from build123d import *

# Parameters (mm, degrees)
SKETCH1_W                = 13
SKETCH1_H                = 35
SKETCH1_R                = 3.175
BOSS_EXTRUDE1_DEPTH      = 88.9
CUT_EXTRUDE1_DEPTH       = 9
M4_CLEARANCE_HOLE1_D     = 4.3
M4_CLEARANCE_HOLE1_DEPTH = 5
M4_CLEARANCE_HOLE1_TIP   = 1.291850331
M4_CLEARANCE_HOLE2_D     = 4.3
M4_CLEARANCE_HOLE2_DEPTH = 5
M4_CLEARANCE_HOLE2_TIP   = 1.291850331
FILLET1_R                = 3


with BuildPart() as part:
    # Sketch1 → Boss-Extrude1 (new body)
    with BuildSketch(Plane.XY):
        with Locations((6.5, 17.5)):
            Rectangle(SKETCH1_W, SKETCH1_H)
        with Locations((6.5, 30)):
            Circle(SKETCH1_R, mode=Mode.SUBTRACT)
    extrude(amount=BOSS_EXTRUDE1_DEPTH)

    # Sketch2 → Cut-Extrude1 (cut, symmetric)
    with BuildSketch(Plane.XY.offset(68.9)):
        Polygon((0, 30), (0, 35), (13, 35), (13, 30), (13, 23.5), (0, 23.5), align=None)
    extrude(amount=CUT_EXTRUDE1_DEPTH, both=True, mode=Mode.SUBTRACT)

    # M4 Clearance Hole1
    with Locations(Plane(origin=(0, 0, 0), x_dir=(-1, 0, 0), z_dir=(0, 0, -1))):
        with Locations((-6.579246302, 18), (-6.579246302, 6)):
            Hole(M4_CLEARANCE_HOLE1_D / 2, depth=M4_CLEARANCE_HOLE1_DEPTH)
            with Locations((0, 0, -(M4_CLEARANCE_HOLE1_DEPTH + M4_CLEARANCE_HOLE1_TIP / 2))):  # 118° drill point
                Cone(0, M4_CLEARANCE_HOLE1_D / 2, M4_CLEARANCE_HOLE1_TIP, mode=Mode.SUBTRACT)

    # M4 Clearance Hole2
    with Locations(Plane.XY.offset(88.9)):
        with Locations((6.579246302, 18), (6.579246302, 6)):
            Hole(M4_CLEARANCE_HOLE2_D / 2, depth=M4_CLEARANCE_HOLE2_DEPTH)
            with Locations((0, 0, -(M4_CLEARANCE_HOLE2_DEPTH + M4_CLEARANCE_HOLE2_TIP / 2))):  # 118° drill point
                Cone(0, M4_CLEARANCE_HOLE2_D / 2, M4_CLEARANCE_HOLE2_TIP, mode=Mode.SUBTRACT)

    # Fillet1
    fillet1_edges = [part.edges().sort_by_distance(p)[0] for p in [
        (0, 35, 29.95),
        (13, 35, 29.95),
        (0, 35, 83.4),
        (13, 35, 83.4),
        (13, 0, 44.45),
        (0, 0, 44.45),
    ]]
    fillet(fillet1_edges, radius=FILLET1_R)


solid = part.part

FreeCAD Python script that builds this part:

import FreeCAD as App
import Part
import Sketcher

V = App.Vector


def edges_at(feature, points):
    """Names of the edges that pass closest to the given points."""
    edges = feature.Shape.Edges
    near = lambda p: min(range(len(edges)), key=lambda i: edges[i].distToShape(Part.Vertex(*p))[0])
    return sorted({f"Edge{near(p) + 1}" for p in points})

doc = App.newDocument("Part")
body = doc.addObject("PartDesign::Body", "Body")

sketch1 = body.newObject("Sketcher::SketchObject", "Sketch")
sketch1.AttachmentSupport = (doc.getObject("XY_Plane"), [""])
sketch1.MapMode = "FlatFace"
sketch1.addGeometry([
    Part.LineSegment(V(0, 35, 0), V(0, 0, 0)),
    Part.LineSegment(V(0, 0, 0), V(13, 0, 0)),
    Part.LineSegment(V(13, 0, 0), V(13, 35, 0)),
    Part.LineSegment(V(13, 35, 0), V(0, 35, 0)),
    Part.Circle(V(6.5, 30, 0), V(0, 0, 1), 3.175),
], False)
sketch1.addConstraint([
    Sketcher.Constraint("Coincident", 0, 2, 1, 1),
    Sketcher.Constraint("Coincident", 1, 2, 2, 1),
    Sketcher.Constraint("Coincident", 2, 2, 3, 1),
    Sketcher.Constraint("Coincident", 3, 2, 0, 1),
    Sketcher.Constraint("Vertical", 0),
    Sketcher.Constraint("Horizontal", 1),
    Sketcher.Constraint("Vertical", 2),
    Sketcher.Constraint("Horizontal", 3),
    Sketcher.Constraint("Coincident", 0, 2, -1, 1),
    Sketcher.Constraint("Diameter", 4, 6.35),
    Sketcher.Constraint("DistanceX", 1, 1, 1, 2, 13.0),
    Sketcher.Constraint("DistanceY", 0, 2, 0, 1, 35.0),
    Sketcher.Constraint("DistanceY", -1, 1, 4, 3, 30.0),
    Sketcher.Constraint("DistanceX", -1, 1, 4, 3, 6.5),
])
pad1 = body.newObject("PartDesign::Pad", "Pad")
pad1.Profile = sketch1
pad1.Length = 88.9

sketch2 = body.newObject("Sketcher::SketchObject", "Sketch001")
sketch2.AttachmentSupport = (doc.getObject("XY_Plane"), [""])
sketch2.MapMode = "FlatFace"
sketch2.AttachmentOffset = App.Placement(V(0, 0, 68.9), App.Rotation())
sketch2.addGeometry([
    Part.LineSegment(V(0, 35, 0), V(0, 23.5, 0)),
    Part.LineSegment(V(0, 23.5, 0), V(13, 23.5, 0)),
    Part.LineSegment(V(13, 23.5, 0), V(13, 35, 0)),
    Part.LineSegment(V(13, 35, 0), V(0, 35, 0)),
], False)
sketch2.addConstraint([
    Sketcher.Constraint("Coincident", 0, 2, 1, 1),
    Sketcher.Constraint("Coincident", 1, 2, 2, 1),
    Sketcher.Constraint("Coincident", 2, 2, 3, 1),
    Sketcher.Constraint("Coincident", 3, 2, 0, 1),
    Sketcher.Constraint("Vertical", 0),
    Sketcher.Constraint("Horizontal", 1),
    Sketcher.Constraint("Vertical", 2),
    Sketcher.Constraint("Horizontal", 3),
    Sketcher.Constraint("PointOnObject", 0, 2, -2),
    Sketcher.Constraint("DistanceX", 1, 1, 1, 2, 13.0),
    Sketcher.Constraint("DistanceY", 0, 2, 0, 1, 11.5),
    Sketcher.Constraint("DistanceY", -1, 1, 2, 2, 35.0),
])
pocket1 = body.newObject("PartDesign::Pocket", "Pocket")
pocket1.Profile = sketch2
pocket1.Length = 18
pocket1.Midplane = True

sketch3 = body.newObject("Sketcher::SketchObject", "Sketch002")
sketch3.AttachmentSupport = (doc.getObject("XY_Plane"), [""])
sketch3.MapMode = "FlatFace"
sketch3.addGeometry([
    Part.Circle(V(6.579246, 18, 0), V(0, 0, 1), 2.15),
    Part.Circle(V(6.579246, 6, 0), V(0, 0, 1), 2.15),
], False)
sketch3.addConstraint([
    Sketcher.Constraint("Equal", 0, 1),
    Sketcher.Constraint("Vertical", 0, 3, 1, 3),
    Sketcher.Constraint("Diameter", 0, 4.3),
    Sketcher.Constraint("DistanceY", -1, 1, 0, 3, 18.0),
    Sketcher.Constraint("DistanceY", -1, 1, 1, 3, 6.0),
    Sketcher.Constraint("DistanceX", -1, 1, 0, 3, 6.579246),
])
doc.recompute()
hole = body.newObject("PartDesign::Hole", "Hole")
hole.Profile = sketch3
hole.ThreadType = "None"
hole.Diameter = 4.3
hole.DepthType = "Dimension"
hole.Depth = 5
hole.DrillPoint = "Angled"
hole.DrillPointAngle = 118
hole.Reversed = True

sketch4 = body.newObject("Sketcher::SketchObject", "Sketch003")
sketch4.AttachmentSupport = (doc.getObject("XY_Plane"), [""])
sketch4.MapMode = "FlatFace"
sketch4.AttachmentOffset = App.Placement(V(0, 0, 88.9), App.Rotation())
sketch4.addGeometry([
    Part.Circle(V(6.579246, 18, 0), V(0, 0, 1), 2.15),
    Part.Circle(V(6.579246, 6, 0), V(0, 0, 1), 2.15),
], False)
sketch4.addConstraint([
    Sketcher.Constraint("Equal", 0, 1),
    Sketcher.Constraint("Vertical", 0, 3, 1, 3),
    Sketcher.Constraint("Diameter", 0, 4.3),
    Sketcher.Constraint("DistanceY", -1, 1, 0, 3, 18.0),
    Sketcher.Constraint("DistanceY", -1, 1, 1, 3, 6.0),
    Sketcher.Constraint("DistanceX", -1, 1, 0, 3, 6.579246),
])
doc.recompute()
hole2 = body.newObject("PartDesign::Hole", "Hole001")
hole2.Profile = sketch4
hole2.ThreadType = "None"
hole2.Diameter = 4.3
hole2.DepthType = "Dimension"
hole2.Depth = 5
hole2.DrillPoint = "Angled"
hole2.DrillPointAngle = 118
doc.recompute()

fillet = body.newObject("PartDesign::Fillet", "Fillet")
fillet.Base = (hole2, edges_at(hole2, [
    (0, 35, 29.95),
    (13, 35, 29.95),
    (0, 35, 83.4),
    (13, 35, 83.4),
    (13, 0, 44.45),
    (0, 0, 44.45),
]))
fillet.Radius = 3

doc.recompute()
